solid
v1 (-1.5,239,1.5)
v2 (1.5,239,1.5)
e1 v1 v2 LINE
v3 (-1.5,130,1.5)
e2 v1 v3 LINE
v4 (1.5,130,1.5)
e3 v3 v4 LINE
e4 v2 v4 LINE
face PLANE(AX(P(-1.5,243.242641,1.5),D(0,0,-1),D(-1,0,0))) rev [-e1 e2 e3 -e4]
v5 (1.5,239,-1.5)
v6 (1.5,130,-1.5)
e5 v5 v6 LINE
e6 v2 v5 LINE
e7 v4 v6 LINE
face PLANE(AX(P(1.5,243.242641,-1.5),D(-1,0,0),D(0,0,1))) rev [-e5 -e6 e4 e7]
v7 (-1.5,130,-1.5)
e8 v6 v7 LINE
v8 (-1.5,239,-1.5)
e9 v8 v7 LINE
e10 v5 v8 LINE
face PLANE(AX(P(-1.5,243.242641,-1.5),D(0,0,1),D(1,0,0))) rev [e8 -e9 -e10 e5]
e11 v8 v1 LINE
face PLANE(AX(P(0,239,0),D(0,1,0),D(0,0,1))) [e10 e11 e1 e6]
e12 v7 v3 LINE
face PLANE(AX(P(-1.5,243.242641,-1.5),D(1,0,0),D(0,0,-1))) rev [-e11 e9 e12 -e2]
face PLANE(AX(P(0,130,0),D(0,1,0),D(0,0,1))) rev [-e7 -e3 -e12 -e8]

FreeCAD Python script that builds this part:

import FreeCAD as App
import Part
import Sketcher
from FreeCAD import Vector
Q = App.Units.Quantity

doc = App.newDocument("Part")
body = doc.addObject("PartDesign::Body", "Body")

# Sketch on XZ plane
sketch1 = doc.addObject("Sketcher::SketchObject", "Sketch")
body.addObject(sketch1)
sketch1.AttachmentSupport = (doc.XZ_Plane, [""])
sketch1.MapMode = "FlatFace"
sketch1.addGeometry(Part.LineSegment(Vector(-22, -18, 0), Vector(-22, 18, 0)), False)
sketch1.addGeometry(Part.LineSegment(Vector(-22, 18, 0), Vector(22, 18, 0)), False)
sketch1.addGeometry(Part.LineSegment(Vector(22, 18, 0), Vector(22, -18, 0)), False)
sketch1.addGeometry(Part.LineSegment(Vector(22, -18, 0), Vector(-22, -18, 0)), False)
sketch1.addConstraint(Sketcher.Constraint("Coincident", 0, 2, 1, 1))
sketch1.addConstraint(Sketcher.Constraint("Coincident", 1, 2, 2, 1))
sketch1.addConstraint(Sketcher.Constraint("Coincident", 2, 2, 3, 1))
sketch1.addConstraint(Sketcher.Constraint("Coincident", 3, 2, 0, 1))
sketch1.addConstraint(Sketcher.Constraint("Vertical", 0))
sketch1.addConstraint(Sketcher.Constraint("Horizontal", 1))
sketch1.addConstraint(Sketcher.Constraint("Vertical", 2))
sketch1.addConstraint(Sketcher.Constraint("Horizontal", 3))
sketch1.addConstraint(Sketcher.Constraint("Symmetric", 0, 2, 2, 2, -1, 1))
sketch1.addConstraint(Sketcher.Constraint("DistanceY", 0, 1, 0, 2, Q("35 mm")))
sketch1.addConstraint(Sketcher.Constraint("DistanceX", 1, 1, 1, 2, Q("44.1 mm")))
pad1 = doc.addObject("PartDesign::Pad", "Pad")
body.addObject(pad1)
pad1.Profile = sketch1
pad1.Length = 20.9
pad1.Reversed = True

# Sketch on XZ plane
sketch2 = doc.addObject("Sketcher::SketchObject", "Sketch001")
body.addObject(sketch2)
sketch2.AttachmentSupport = (doc.XZ_Plane, [""])
sketch2.MapMode = "FlatFace"
sketch2.AttachmentOffset = App.Placement(Vector(0, 0, -20.9), App.Rotation())
sketch2.addGeometry(Part.LineSegment(Vector(-4, -4, 0), Vector(-4, 4, 0)), False)
sketch2.addGeometry(Part.LineSegment(Vector(-4, 4, 0), Vector(4, 4, 0)), False)
sketch2.addGeometry(Part.LineSegment(Vector(4, 4, 0), Vector(4, -4, 0)), False)
sketch2.addGeometry(Part.LineSegment(Vector(4, -4, 0), Vector(-4, -4, 0)), False)
sketch2.addConstraint(Sketcher.Constraint("Coincident", 0, 2, 1, 1))
sketch2.addConstraint(Sketcher.Constraint("Coincident", 1, 2, 2, 1))
sketch2.addConstraint(Sketcher.Constraint("Coincident", 2, 2, 3, 1))
sketch2.addConstraint(Sketcher.Constraint("Coincident", 3, 2, 0, 1))
sketch2.addConstraint(Sketcher.Constraint("Vertical", 0))
sketch2.addConstraint(Sketcher.Constraint("Horizontal", 1))
sketch2.addConstraint(Sketcher.Constraint("Vertical", 2))
sketch2.addConstraint(Sketcher.Constraint("Horizontal", 3))
sketch2.addConstraint(Sketcher.Constraint("Symmetric", 0, 2, 2, 2, -1, 1))
sketch2.addConstraint(Sketcher.Constraint("Equal", 3, 0))
sketch2.addConstraint(Sketcher.Constraint("DistanceX", 1, 1, 1, 2, Q("8 mm")))
pad2 = doc.addObject("PartDesign::Pad", "Pad001")
body.addObject(pad2)
pad2.Profile = sketch2
pad2.Length = 109.1
pad2.Reversed = True

# Sketch on XZ plane
sketch3 = doc.addObject("Sketcher::SketchObject", "Sketch002")
body.addObject(sketch3)
sketch3.AttachmentSupport = (doc.XZ_Plane, [""])
sketch3.MapMode = "FlatFace"
sketch3.AttachmentOffset = App.Placement(Vector(0, 0, -130), App.Rotation())
sketch3.addGeometry(Part.LineSegment(Vector(-1.5, -1.5, 0), Vector(-1.5, 1.5, 0)), False)
sketch3.addGeometry(Part.LineSegment(Vector(-1.5, 1.5, 0), Vector(1.5, 1.5, 0)), False)
sketch3.addGeometry(Part.LineSegment(Vector(1.5, 1.5, 0), Vector(1.5, -1.5, 0)), False)
sketch3.addGeometry(Part.LineSegment(Vector(1.5, -1.5, 0), Vector(-1.5, -1.5, 0)), False)
sketch3.addConstraint(Sketcher.Constraint("Coincident", 0, 2, 1, 1))
sketch3.addConstraint(Sketcher.Constraint("Coincident", 1, 2, 2, 1))
sketch3.addConstraint(Sketcher.Constraint("Coincident", 2, 2, 3, 1))
sketch3.addConstraint(Sketcher.Constraint("Coincident", 3, 2, 0, 1))
sketch3.addConstraint(Sketcher.Constraint("Vertical", 0))
sketch3.addConstraint(Sketcher.Constraint("Horizontal", 1))
sketch3.addConstraint(Sketcher.Constraint("Vertical", 2))
sketch3.addConstraint(Sketcher.Constraint("Horizontal", 3))
sketch3.addConstraint(Sketcher.Constraint("Symmetric", 0, 2, 2, 2, -1, 1))
sketch3.addConstraint(Sketcher.Constraint("Equal", 3, 0))
sketch3.addConstraint(Sketcher.Constraint("DistanceX", 1, 1, 1, 2, Q("3 mm")))
pad3 = doc.addObject("PartDesign::Pad", "Pad002")
body.addObject(pad3)
pad3.Profile = sketch3
pad3.Length = 109
pad3.Reversed = True

# Sketch on XZ plane
sketch4 = doc.addObject("Sketcher::SketchObject", "Sketch003")
body.addObject(sketch4)
sketch4.AttachmentSupport = (doc.XZ_Plane, [""])
sketch4.MapMode = "FlatFace"
sketch4.AttachmentOffset = App.Placement(Vector(0, 0, -130), App.Rotation())
sketch4.addGeometry(Part.LineSegment(Vector(-65, -65, 0), Vector(-65, 65, 0)), False)
sketch4.addGeometry(Part.LineSegment(Vector(-65, 65, 0), Vector(65, 65, 0)), False)
sketch4.addGeometry(Part.LineSegment(Vector(65, 65, 0), Vector(65, -65, 0)), False)
sketch4.addGeometry(Part.LineSegment(Vector(65, -65, 0), Vector(-65, -65, 0)), False)
sketch4.addConstraint(Sketcher.Constraint("Coincident", 0, 2, 1, 1))
sketch4.addConstraint(Sketcher.Constraint("Coincident", 1, 2, 2, 1))
sketch4.addConstraint(Sketcher.Constraint("Coincident", 2, 2, 3, 1))
sketch4.addConstraint(Sketcher.Constraint("Coincident", 3, 2, 0, 1))
sketch4.addConstraint(Sketcher.Constraint("Vertical", 0))
sketch4.addConstraint(Sketcher.Constraint("Horizontal", 1))
sketch4.addConstraint(Sketcher.Constraint("Vertical", 2))
sketch4.addConstraint(Sketcher.Constraint("Horizontal", 3))
sketch4.addConstraint(Sketcher.Constraint("Symmetric", 0, 2, 2, 2, -1, 1))
sketch4.addConstraint(Sketcher.Constraint("Equal", 3, 0))
sketch4.addConstraint(Sketcher.Constraint("DistanceX", 1, 1, 1, 2, Q("130 mm")))
pocket1 = doc.addObject("PartDesign::Pocket", "Pocket")
body.addObject(pocket1)
pocket1.Profile = sketch4
pocket1.Type = "ThroughAll"
pocket1.Reversed = True

doc.recompute()
